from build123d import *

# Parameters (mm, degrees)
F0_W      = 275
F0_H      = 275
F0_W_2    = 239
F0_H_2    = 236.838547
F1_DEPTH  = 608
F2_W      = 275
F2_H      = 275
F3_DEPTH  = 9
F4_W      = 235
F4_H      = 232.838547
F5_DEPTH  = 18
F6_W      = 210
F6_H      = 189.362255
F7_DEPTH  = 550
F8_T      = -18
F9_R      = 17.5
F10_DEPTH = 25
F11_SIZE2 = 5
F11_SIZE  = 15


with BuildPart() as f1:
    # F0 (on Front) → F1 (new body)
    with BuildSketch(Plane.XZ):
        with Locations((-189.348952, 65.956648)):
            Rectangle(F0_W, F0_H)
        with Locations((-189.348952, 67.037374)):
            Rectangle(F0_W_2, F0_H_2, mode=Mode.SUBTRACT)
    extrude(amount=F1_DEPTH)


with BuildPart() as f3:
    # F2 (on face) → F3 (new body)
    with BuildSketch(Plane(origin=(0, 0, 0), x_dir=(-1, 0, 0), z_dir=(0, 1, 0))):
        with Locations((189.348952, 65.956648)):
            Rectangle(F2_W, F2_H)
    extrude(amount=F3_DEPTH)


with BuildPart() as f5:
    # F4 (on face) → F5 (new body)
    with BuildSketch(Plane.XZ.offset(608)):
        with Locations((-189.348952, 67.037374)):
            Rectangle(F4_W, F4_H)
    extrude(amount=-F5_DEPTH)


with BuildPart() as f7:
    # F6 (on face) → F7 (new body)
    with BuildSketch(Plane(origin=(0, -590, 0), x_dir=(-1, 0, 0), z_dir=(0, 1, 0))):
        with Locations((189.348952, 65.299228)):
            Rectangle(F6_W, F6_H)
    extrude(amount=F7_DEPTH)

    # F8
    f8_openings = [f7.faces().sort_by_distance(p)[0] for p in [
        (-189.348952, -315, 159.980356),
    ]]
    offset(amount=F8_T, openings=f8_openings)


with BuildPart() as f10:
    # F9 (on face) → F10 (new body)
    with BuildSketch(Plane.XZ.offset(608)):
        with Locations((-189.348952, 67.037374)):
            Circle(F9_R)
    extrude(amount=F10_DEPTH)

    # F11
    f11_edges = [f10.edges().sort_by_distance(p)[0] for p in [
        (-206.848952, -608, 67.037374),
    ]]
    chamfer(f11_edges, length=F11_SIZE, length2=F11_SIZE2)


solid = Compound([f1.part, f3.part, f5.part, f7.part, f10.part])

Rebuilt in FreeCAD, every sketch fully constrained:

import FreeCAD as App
import Part
import Sketcher

V = App.Vector


def edges_at(feature, points):
    """Names of the edges that pass closest to the given points."""
    edges = feature.Shape.Edges
    near = lambda p: min(range(len(edges)), key=lambda i: edges[i].distToShape(Part.Vertex(*p))[0])
    return sorted({f"Edge{near(p) + 1}" for p in points})


def faces_at(feature, points):
    """Names of the faces that lie closest to the given points."""
    faces = feature.Shape.Faces
    near = lambda p: min(range(len(faces)), key=lambda i: faces[i].distToShape(Part.Vertex(*p))[0])
    return sorted({f"Face{near(p) + 1}" for p in points})


def add_polygon(sketch, points):
    """Adds a closed chain of lines whose ends are joined by coincident constraints."""
    first, n = sketch.GeometryCount, len(points)
    for a, b in zip(points, points[1:] + points[:1]):
        sketch.addGeometry(Part.LineSegment(App.Vector(*a, 0), App.Vector(*b, 0)), False)
    for i in range(n):
        sketch.addConstraint(Sketcher.Constraint("Coincident", first + i, 2, first + (i + 1) % n, 1))

doc = App.newDocument("Part")
params = doc.addObject("Spreadsheet::Sheet", "Params")
for row, (alias, value) in enumerate([
    ("sketch1_width", "275 mm"),
    ("sketch1_width2", "239 mm"),
    ("pad1_length", "608 mm"),
    ("sketch2_width", "275 mm"),
    ("pad2_length", "9 mm"),
    ("sketch3_width", "235 mm"),
    ("pad3_length", "18 mm"),
    ("sketch4_width", "210 mm"),
    ("pad4_length", "550 mm"),
    ("thickness_wall", "18 mm"),
    ("sketch5_diameter", "35 mm"),
    ("pad5_length", "25 mm"),
    ("chamfer_size", "15 mm"),
    ("chamfer_size2", "5 mm"),
], start=1):
    params.set(f"A{row}", alias)
    params.set(f"B{row}", "=" + value)
    params.setAlias(f"B{row}", alias)

body = doc.addObject("PartDesign::Body", "Body")

# Sketch on XZ plane
sketch1 = body.newObject("Sketcher::SketchObject", "Sketch")
sketch1.AttachmentSupport = (doc.getObject("XZ_Plane"), [""])
sketch1.MapMode = "FlatFace"
add_polygon(sketch1, [(-327, 203), (-327, -72), (-52, -72), (-52, 203)])  # lines 0-3
add_polygon(sketch1, [(-70, -51), (-309, -51), (-309, 185), (-70, 185)])  # lines 4-7
sketch1.addConstraint([
    Sketcher.Constraint("Vertical", 0),
    Sketcher.Constraint("Horizontal", 1),
    Sketcher.Constraint("Vertical", 2),
    Sketcher.Constraint("Horizontal", 3),
    Sketcher.Constraint("Horizontal", 4),
    Sketcher.Constraint("Vertical", 5),
    Sketcher.Constraint("Horizontal", 6),
    Sketcher.Constraint("Vertical", 7),
    Sketcher.Constraint("Equal", 3, 0),
    Sketcher.Constraint("DistanceX", 1, 1, 1, 2, 275.0),
    Sketcher.Constraint("DistanceX", 4, 2, 4, 1, 239.0),
    Sketcher.Constraint("DistanceX", 0, 2, 4, 2, 18.0),
    Sketcher.Constraint("DistanceY", 5, 2, 3, 2, 18.0),
    Sketcher.Constraint("DistanceY", 4, 2, -1, 1, 51.3819),
    Sketcher.Constraint("DistanceY", 5, 1, 5, 2, 236.838547),
    Sketcher.Constraint("DistanceX", 0, 2, -1, 1, 326.848952),
])
sketch1.setExpression("Constraints[17]", "Params.sketch1_width")
sketch1.setExpression("Constraints[18]", "Params.sketch1_width2")
pad1 = body.newObject("PartDesign::Pad", "Pad")
pad1.Profile = sketch1
pad1.setExpression("Length", "Params.pad1_length")
body2 = doc.addObject("PartDesign::Body", "Body001")

# Sketch on XZ plane
sketch2 = body2.newObject("Sketcher::SketchObject", "Sketch001")
sketch2.AttachmentSupport = (doc.getObject("XZ_Plane001"), [""])
sketch2.MapMode = "FlatFace"
add_polygon(sketch2, [(-52, 203), (-52, -72), (-327, -72), (-327, 203)])  # lines 0-3
sketch2.addConstraint([
    Sketcher.Constraint("Vertical", 0),
    Sketcher.Constraint("Horizontal", 1),
    Sketcher.Constraint("Vertical", 2),
    Sketcher.Constraint("Horizontal", 3),
    Sketcher.Constraint("Equal", 3, 0),
    Sketcher.Constraint("DistanceX", 1, 2, 1, 1, 275.0),
    Sketcher.Constraint("DistanceX", 0, 2, -1, 1, 51.848952),
    Sketcher.Constraint("DistanceY", 0, 2, -1, 1, 71.543352),
])
sketch2.setExpression("Constraints[9]", "Params.sketch2_width")
pad2 = body2.newObject("PartDesign::Pad", "Pad001")
pad2.Profile = sketch2
pad2.setExpression("Length", "Params.pad2_length")
pad2.Reversed = True
body3 = doc.addObject("PartDesign::Body", "Body002")

# Sketch on XZ plane
sketch3 = body3.newObject("Sketcher::SketchObject", "Sketch002")
sketch3.AttachmentSupport = (doc.getObject("XZ_Plane002"), [""])
sketch3.MapMode = "FlatFace"
sketch3.AttachmentOffset = App.Placement(V(0, 0, 608), App.Rotation())
add_polygon(sketch3, [(-307, 183), (-307, -49), (-72, -49), (-72, 183)])  # lines 0-3
sketch3.addConstraint([
    Sketcher.Constraint("Vertical", 0),
    Sketcher.Constraint("Horizontal", 1),
    Sketcher.Constraint("Vertical", 2),
    Sketcher.Constraint("Horizontal", 3),
    Sketcher.Constraint("DistanceX", 1, 1, 1, 2, 235.0),
    Sketcher.Constraint("DistanceY", 0, 2, -1, 1, 49.3819),
    Sketcher.Constraint("DistanceY", 0, 2, 0, 1, 232.838547),
    Sketcher.Constraint("DistanceX", 0, 2, -1, 1, 306.848952),
])
sketch3.setExpression("Constraints[8]", "Params.sketch3_width")
pad3 = body3.newObject("PartDesign::Pad", "Pad002")
pad3.Profile = sketch3
pad3.setExpression("Length", "Params.pad3_length")
pad3.Reversed = True
body4 = doc.addObject("PartDesign::Body", "Body003")

# Sketch on XZ plane
sketch4 = body4.newObject("Sketcher::SketchObject", "Sketch003")
sketch4.AttachmentSupport = (doc.getObject("XZ_Plane003"), [""])
sketch4.MapMode = "FlatFace"
sketch4.AttachmentOffset = App.Placement(V(0, 0, 590), App.Rotation())
add_polygon(sketch4, [(-84, 160), (-84, -29), (-294, -29), (-294, 160)])  # lines 0-3
sketch4.addConstraint([
    Sketcher.Constraint("Vertical", 0),
    Sketcher.Constraint("Horizontal", 1),
    Sketcher.Constraint("Vertical", 2),
    Sketcher.Constraint("Horizontal", 3),
    Sketcher.Constraint("DistanceX", 1, 2, 1, 1, 210.0),
    Sketcher.Constraint("DistanceY", 0, 2, -1, 1, 29.381899),
    Sketcher.Constraint("DistanceY", 0, 2, 0, 1, 189.362255),
    Sketcher.Constraint("DistanceX", 0, 2, -1, 1, 84.348952),
])
sketch4.setExpression("Constraints[8]", "Params.sketch4_width")
pad4 = body4.newObject("PartDesign::Pad", "Pad003")
pad4.Profile = sketch4
pad4.setExpression("Length", "Params.pad4_length")
pad4.Reversed = True
doc.recompute()

thickness = body4.newObject("PartDesign::Thickness", "Thickness")
thickness.Base = (pad4, faces_at(pad4, [(-189.349, -315, 159.98)]))
thickness.setExpression("Value", "Params.thickness_wall")
thickness.Reversed = True
thickness.Join = "Arc"
body5 = doc.addObject("PartDesign::Body", "Body004")

# Sketch on XZ plane
sketch5 = body5.newObject("Sketcher::SketchObject", "Sketch004")
sketch5.AttachmentSupport = (doc.getObject("XZ_Plane004"), [""])
sketch5.MapMode = "FlatFace"
sketch5.AttachmentOffset = App.Placement(V(0, 0, 608), App.Rotation())
sketch5.addGeometry(Part.Circle(V(-189, 67, 0), V(0, 0, 1), 18), False)
sketch5.addConstraint([
    Sketcher.Constraint("Diameter", 0, 35.0),
    Sketcher.Constraint("DistanceX", 0, 3, -1, 1, 189.348952),
    Sketcher.Constraint("DistanceY", -1, 1, 0, 3, 67.037374),
])
sketch5.setExpression("Constraints[0]", "Params.sketch5_diameter")
pad5 = body5.newObject("PartDesign::Pad", "Pad004")
pad5.Profile = sketch5
pad5.setExpression("Length", "Params.pad5_length")
doc.recompute()

chamfer = body5.newObject("PartDesign::Chamfer", "Chamfer")
chamfer.Base = (pad5, edges_at(pad5, [(-206.849, -608, 67.037)]))
chamfer.ChamferType = "Two distances"
chamfer.setExpression("Size", "Params.chamfer_size")
chamfer.setExpression("Size2", "Params.chamfer_size2")

doc.recompute()
